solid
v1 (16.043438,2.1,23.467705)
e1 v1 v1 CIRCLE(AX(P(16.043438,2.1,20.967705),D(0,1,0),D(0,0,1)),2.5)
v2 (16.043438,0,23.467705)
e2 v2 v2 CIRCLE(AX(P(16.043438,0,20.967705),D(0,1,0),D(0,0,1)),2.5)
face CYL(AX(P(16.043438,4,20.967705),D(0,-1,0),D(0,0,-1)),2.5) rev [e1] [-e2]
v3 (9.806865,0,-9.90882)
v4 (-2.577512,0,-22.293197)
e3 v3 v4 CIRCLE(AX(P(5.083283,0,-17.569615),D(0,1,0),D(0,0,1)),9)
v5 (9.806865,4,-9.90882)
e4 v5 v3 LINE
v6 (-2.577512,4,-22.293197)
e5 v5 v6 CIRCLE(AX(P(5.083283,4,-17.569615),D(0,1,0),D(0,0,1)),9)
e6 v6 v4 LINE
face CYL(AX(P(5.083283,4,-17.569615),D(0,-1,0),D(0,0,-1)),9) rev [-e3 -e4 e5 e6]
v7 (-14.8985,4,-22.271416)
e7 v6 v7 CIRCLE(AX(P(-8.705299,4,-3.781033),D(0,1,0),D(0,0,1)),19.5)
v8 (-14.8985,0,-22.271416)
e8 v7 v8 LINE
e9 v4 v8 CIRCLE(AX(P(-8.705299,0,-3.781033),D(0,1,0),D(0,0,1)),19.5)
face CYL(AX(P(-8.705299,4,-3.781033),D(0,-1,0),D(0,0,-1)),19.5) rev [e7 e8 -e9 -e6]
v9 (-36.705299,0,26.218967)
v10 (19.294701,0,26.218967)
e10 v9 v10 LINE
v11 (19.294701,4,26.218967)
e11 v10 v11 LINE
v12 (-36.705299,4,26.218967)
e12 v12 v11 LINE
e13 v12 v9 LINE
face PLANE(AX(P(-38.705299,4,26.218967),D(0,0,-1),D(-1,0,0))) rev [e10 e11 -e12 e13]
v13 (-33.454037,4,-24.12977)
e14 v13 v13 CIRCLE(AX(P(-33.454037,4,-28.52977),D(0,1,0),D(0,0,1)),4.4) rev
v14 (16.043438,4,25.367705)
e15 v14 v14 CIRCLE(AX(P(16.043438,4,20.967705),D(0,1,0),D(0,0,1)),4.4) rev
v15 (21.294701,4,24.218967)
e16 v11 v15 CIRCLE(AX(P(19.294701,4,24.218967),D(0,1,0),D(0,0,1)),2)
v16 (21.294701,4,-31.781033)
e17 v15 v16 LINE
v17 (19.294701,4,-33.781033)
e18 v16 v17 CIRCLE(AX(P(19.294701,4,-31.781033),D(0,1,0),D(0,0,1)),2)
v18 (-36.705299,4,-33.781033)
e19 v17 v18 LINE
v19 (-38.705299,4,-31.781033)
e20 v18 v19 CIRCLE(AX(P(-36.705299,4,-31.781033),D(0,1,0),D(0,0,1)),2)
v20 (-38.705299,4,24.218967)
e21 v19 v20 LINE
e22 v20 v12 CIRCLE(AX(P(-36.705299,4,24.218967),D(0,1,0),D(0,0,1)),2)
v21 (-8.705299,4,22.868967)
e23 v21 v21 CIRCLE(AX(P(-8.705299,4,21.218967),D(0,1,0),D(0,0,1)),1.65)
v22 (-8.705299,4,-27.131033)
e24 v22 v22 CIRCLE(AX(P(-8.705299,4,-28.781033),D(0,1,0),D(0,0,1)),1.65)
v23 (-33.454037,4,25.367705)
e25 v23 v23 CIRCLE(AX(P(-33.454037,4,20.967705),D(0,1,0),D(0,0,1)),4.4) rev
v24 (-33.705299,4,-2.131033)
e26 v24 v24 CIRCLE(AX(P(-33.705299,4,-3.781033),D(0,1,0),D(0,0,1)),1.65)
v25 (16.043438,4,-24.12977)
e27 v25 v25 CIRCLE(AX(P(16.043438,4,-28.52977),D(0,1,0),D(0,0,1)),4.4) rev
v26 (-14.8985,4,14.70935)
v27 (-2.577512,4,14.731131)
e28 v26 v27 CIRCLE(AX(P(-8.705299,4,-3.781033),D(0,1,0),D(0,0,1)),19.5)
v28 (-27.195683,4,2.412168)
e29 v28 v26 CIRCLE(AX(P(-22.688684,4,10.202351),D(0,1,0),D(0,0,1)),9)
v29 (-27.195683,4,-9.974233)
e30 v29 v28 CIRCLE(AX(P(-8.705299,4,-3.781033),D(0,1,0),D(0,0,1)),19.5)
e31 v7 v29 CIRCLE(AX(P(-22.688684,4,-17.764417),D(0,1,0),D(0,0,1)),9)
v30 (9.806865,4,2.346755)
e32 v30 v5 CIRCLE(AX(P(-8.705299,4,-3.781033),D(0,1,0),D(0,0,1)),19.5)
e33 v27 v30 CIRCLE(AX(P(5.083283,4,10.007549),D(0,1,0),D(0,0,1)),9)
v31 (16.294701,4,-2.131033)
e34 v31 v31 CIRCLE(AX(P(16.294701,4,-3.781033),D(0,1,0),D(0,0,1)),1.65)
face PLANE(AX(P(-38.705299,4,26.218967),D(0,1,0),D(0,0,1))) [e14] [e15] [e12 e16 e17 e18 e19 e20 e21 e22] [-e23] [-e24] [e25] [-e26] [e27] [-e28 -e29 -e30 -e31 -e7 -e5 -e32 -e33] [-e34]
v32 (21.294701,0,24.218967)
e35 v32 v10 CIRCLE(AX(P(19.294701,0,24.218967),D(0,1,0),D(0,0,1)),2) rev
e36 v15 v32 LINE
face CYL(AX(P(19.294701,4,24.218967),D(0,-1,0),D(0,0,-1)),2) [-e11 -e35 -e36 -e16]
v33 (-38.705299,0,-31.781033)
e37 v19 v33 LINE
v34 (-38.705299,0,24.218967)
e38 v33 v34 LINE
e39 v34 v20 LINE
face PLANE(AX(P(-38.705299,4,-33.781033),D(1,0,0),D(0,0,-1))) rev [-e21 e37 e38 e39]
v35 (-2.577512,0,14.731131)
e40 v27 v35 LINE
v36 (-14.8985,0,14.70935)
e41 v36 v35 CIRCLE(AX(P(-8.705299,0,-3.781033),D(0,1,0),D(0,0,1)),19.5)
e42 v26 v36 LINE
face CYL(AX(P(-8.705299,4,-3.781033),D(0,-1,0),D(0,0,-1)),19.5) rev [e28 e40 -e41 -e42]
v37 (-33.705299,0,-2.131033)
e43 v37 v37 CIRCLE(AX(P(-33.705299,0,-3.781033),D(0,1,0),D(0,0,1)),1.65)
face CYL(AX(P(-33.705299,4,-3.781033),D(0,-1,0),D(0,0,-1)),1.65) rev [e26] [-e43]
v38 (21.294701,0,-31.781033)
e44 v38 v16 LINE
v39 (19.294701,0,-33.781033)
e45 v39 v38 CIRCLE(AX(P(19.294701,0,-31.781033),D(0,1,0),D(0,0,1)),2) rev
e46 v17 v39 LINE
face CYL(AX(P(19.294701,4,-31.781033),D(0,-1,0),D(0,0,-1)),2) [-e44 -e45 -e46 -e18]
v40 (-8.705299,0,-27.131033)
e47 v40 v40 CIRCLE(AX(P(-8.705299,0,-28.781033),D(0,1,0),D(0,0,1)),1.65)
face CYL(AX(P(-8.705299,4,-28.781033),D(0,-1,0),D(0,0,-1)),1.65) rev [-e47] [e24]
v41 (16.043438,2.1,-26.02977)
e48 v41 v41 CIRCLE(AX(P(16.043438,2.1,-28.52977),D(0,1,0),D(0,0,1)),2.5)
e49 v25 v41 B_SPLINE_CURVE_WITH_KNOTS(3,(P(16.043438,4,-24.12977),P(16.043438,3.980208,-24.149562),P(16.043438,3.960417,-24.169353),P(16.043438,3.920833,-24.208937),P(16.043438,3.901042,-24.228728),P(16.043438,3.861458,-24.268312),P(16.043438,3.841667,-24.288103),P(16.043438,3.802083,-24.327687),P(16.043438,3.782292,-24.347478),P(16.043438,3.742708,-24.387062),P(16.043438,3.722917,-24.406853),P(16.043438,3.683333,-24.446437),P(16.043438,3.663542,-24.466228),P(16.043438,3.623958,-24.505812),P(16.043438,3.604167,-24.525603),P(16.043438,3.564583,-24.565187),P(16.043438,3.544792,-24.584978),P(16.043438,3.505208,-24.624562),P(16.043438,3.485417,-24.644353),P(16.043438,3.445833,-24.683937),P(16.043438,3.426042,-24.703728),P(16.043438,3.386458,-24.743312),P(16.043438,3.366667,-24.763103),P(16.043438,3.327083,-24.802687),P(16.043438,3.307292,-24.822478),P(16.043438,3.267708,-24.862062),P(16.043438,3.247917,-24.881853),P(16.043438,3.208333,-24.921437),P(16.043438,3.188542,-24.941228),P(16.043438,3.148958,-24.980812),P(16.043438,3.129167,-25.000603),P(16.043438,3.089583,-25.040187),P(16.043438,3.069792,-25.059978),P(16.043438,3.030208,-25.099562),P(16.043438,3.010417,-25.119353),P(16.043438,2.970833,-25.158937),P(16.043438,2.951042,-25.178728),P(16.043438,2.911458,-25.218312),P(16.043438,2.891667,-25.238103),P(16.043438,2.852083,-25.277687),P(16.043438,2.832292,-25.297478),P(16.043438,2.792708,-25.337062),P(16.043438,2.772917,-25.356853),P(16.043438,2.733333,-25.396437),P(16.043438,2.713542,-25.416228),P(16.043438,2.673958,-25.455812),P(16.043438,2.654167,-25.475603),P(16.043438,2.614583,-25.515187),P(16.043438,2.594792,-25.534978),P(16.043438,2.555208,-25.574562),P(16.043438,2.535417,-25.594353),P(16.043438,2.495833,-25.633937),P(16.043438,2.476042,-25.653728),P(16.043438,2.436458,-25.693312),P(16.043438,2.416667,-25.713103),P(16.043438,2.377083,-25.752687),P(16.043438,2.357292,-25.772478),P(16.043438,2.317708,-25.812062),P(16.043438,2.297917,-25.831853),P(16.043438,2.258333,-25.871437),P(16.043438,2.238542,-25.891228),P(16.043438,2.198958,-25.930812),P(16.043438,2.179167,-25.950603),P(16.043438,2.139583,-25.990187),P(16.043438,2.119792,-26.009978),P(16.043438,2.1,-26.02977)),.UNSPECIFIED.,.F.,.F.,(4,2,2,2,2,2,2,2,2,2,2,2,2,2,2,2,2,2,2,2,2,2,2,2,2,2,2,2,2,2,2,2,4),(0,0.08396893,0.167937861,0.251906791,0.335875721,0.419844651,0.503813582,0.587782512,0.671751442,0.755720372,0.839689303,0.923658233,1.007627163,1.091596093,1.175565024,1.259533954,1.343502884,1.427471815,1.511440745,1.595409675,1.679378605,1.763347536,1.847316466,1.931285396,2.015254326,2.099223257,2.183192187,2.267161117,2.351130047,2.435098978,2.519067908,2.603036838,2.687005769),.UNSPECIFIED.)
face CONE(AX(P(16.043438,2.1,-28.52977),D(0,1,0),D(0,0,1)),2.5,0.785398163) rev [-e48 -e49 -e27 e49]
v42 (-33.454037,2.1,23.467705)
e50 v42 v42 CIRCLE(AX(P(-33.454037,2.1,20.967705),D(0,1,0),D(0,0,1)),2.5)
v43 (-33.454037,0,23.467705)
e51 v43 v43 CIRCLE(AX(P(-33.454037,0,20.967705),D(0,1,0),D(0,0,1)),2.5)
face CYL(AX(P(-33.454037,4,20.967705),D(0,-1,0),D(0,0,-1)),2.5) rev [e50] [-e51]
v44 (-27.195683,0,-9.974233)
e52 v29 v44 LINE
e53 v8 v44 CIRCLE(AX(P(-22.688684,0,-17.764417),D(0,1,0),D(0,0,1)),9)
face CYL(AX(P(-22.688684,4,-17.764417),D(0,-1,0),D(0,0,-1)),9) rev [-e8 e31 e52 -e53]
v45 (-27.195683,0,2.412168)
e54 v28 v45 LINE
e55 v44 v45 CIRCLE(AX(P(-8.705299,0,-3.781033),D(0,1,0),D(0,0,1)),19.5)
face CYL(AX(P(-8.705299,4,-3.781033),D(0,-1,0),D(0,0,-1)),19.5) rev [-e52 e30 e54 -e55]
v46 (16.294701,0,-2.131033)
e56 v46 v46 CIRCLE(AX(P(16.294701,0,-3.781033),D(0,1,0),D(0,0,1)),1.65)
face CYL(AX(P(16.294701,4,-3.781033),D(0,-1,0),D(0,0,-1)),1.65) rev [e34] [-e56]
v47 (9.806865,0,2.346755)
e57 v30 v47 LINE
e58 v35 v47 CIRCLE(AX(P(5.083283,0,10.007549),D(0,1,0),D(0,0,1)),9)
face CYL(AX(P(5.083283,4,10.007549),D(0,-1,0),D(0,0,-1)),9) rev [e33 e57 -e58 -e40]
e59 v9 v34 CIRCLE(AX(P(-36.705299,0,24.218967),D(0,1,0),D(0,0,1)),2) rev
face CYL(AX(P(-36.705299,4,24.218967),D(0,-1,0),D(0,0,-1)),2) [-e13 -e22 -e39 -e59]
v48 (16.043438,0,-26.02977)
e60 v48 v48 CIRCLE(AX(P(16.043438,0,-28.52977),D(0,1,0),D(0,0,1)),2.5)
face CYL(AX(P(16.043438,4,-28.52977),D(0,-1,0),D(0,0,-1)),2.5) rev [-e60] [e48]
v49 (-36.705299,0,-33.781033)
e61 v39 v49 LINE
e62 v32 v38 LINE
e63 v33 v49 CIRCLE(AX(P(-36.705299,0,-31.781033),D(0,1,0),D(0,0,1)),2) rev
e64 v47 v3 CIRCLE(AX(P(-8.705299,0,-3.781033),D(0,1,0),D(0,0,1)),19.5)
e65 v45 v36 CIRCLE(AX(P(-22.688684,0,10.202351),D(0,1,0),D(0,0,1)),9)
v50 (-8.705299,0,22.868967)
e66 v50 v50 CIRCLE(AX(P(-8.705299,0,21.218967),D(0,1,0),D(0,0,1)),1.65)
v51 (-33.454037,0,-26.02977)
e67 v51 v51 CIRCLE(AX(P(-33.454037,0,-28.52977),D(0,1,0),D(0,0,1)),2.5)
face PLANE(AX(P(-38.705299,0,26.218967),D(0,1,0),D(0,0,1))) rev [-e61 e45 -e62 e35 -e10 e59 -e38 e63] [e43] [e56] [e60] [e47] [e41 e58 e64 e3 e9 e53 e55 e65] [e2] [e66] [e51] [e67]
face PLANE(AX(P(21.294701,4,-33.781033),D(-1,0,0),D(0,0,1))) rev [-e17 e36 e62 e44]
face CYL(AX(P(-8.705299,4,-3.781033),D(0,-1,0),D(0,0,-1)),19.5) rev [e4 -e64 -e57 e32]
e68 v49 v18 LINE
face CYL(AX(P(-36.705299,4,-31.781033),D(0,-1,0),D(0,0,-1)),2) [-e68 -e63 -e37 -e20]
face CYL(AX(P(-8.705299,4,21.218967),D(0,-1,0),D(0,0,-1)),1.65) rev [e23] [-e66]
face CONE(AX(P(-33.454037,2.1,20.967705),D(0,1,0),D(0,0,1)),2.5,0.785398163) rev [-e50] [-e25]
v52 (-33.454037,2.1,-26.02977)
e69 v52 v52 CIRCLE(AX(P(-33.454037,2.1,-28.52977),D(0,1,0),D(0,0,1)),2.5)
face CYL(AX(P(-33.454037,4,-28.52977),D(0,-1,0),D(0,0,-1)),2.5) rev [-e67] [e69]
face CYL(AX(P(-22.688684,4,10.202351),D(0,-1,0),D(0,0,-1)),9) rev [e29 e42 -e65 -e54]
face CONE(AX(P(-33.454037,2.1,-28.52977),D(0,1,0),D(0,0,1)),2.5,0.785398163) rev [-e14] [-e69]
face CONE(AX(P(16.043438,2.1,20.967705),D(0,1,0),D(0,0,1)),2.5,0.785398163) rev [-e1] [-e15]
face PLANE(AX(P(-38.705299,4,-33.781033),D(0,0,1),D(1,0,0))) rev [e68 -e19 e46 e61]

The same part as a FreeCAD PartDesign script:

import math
import FreeCAD as App
import Part
import Sketcher

V = App.Vector
Q = App.Units.Quantity


def edges_at(feature, points):
    """Names of the edges that pass closest to the given points."""
    edges = feature.Shape.Edges
    near = lambda p: min(range(len(edges)), key=lambda i: edges[i].distToShape(Part.Vertex(*p))[0])
    return sorted({f"Edge{near(p) + 1}" for p in points})


def add_polygon(sketch, points):
    """Adds a closed chain of lines whose ends are joined by coincident constraints."""
    first, n = sketch.GeometryCount, len(points)
    for a, b in zip(points, points[1:] + points[:1]):
        sketch.addGeometry(Part.LineSegment(App.Vector(*a, 0), App.Vector(*b, 0)), False)
    for i in range(n):
        sketch.addConstraint(Sketcher.Constraint("Coincident", first + i, 2, first + (i + 1) % n, 1))

doc = App.newDocument("Part")
body = doc.addObject("PartDesign::Body", "Body")

# Sketch on XZ plane
sketch1 = doc.addObject("Sketcher::SketchObject", "Sketch")
body.addObject(sketch1)
sketch1.AttachmentSupport = (doc.XZ_Plane, [""])
sketch1.MapMode = "FlatFace"
add_polygon(sketch1, [(-38.705299, -33.781033), (-38.705299, 26.218967), (21.294701, 26.218967), (21.294701, -33.781033)])  # lines 0-3
sketch1.addGeometry(Part.Circle(V(-33.454037, 20.967705, 0), V(0, 0, 1), 2.5), False)  # 4
sketch1.addGeometry(Part.Circle(V(-33.705299, -3.781033, 0), V(0, 0, 1), 1.65), False)  # 5
sketch1.addGeometry(Part.ArcOfCircle(Part.Circle(V(-8.705299, -3.781033, 0), V(0, 0, 1), 19.5), math.radians(161.482153), math.radians(198.517847)), False)  # 6
sketch1.addGeometry(Part.ArcOfCircle(Part.Circle(V(-22.688684, -17.764417, 0), V(0, 0, 1), 9), math.radians(120.051464), math.radians(329.948536)), False)  # 7
sketch1.addGeometry(Part.ArcOfCircle(Part.Circle(V(-8.705299, -3.781033, 0), V(0, 0, 1), 19.5), math.radians(-108.517847), math.radians(-71.684728)), False)  # 8
sketch1.addGeometry(Part.ArcOfCircle(Part.Circle(V(5.083283, -17.569615, 0), V(0, 0, 1), 9), math.radians(-148.342364), math.radians(58.342364)), False)  # 9
sketch1.addGeometry(Part.ArcOfCircle(Part.Circle(V(-8.705299, -3.781033, 0), V(0, 0, 1), 19.5), math.radians(-18.315272), math.radians(18.315272)), False)  # 10
sketch1.addGeometry(Part.ArcOfCircle(Part.Circle(V(5.083283, 10.007549, 0), V(0, 0, 1), 9), math.radians(-58.342364), math.radians(148.342364)), False)  # 11
sketch1.addGeometry(Part.ArcOfCircle(Part.Circle(V(-8.705299, -3.781033, 0), V(0, 0, 1), 19.5), math.radians(71.684728), math.radians(108.517847)), False)  # 12
sketch1.addGeometry(Part.ArcOfCircle(Part.Circle(V(-22.688684, 10.202351, 0), V(0, 0, 1), 9), math.radians(30.051464), math.radians(239.948536)), False)  # 13
sketch1.addGeometry(Part.Circle(V(-8.705299, 21.218967, 0), V(0, 0, 1), 1.65), False)  # 14
sketch1.addGeometry(Part.Circle(V(16.043438, 20.967705, 0), V(0, 0, 1), 2.5), False)  # 15
sketch1.addGeometry(Part.Circle(V(16.294701, -3.781033, 0), V(0, 0, 1), 1.65), False)  # 16
sketch1.addGeometry(Part.Circle(V(-33.454037, -28.52977, 0), V(0, 0, 1), 2.5), False)  # 17
sketch1.addGeometry(Part.Circle(V(-8.705299, -28.781033, 0), V(0, 0, 1), 1.65), False)  # 18
sketch1.addGeometry(Part.Circle(V(16.043438, -28.52977, 0), V(0, 0, 1), 2.5), False)  # 19
sketch1.addConstraint(Sketcher.Constraint("Coincident", 6, 2, 7, 1))
sketch1.addConstraint(Sketcher.Constraint("Coincident", 7, 2, 8, 1))
sketch1.addConstraint(Sketcher.Constraint("Coincident", 8, 2, 9, 1))
sketch1.addConstraint(Sketcher.Constraint("Coincident", 9, 2, 10, 1))
sketch1.addConstraint(Sketcher.Constraint("Coincident", 10, 2, 11, 1))
sketch1.addConstraint(Sketcher.Constraint("Coincident", 11, 2, 12, 1))
sketch1.addConstraint(Sketcher.Constraint("Coincident", 12, 2, 13, 1))
sketch1.addConstraint(Sketcher.Constraint("Coincident", 13, 2, 6, 1))
sketch1.addConstraint(Sketcher.Constraint("Vertical", 0))
sketch1.addConstraint(Sketcher.Constraint("Horizontal", 1))
sketch1.addConstraint(Sketcher.Constraint("Vertical", 2))
sketch1.addConstraint(Sketcher.Constraint("Horizontal", 3))
sketch1.addConstraint(Sketcher.Constraint("Coincident", 8, 3, 6, 3))
sketch1.addConstraint(Sketcher.Constraint("Coincident", 10, 3, 6, 3))
sketch1.addConstraint(Sketcher.Constraint("Coincident", 12, 3, 6, 3))
sketch1.addConstraint(Sketcher.Constraint("Equal", 6, 8))
sketch1.addConstraint(Sketcher.Constraint("Equal", 7, 9))
sketch1.addConstraint(Sketcher.Constraint("Equal", 8, 10))
sketch1.addConstraint(Sketcher.Constraint("Equal", 9, 11))
sketch1.addConstraint(Sketcher.Constraint("Equal", 10, 12))
sketch1.addConstraint(Sketcher.Constraint("Equal", 11, 13))
sketch1.addConstraint(Sketcher.Constraint("Equal", 5, 14))
sketch1.addConstraint(Sketcher.Constraint("Equal", 4, 15))
sketch1.addConstraint(Sketcher.Constraint("Equal", 14, 16))
sketch1.addConstraint(Sketcher.Constraint("Equal", 15, 17))
sketch1.addConstraint(Sketcher.Constraint("Equal", 16, 18))
sketch1.addConstraint(Sketcher.Constraint("Equal", 17, 19))
sketch1.addConstraint(Sketcher.Constraint("Horizontal", 5, 3, 6, 3))
sketch1.addConstraint(Sketcher.Constraint("Horizontal", 4, 3, 15, 3))
sketch1.addConstraint(Sketcher.Constraint("Horizontal", 12, 3, 16, 3))
sketch1.addConstraint(Sketcher.Constraint("Horizontal", 17, 3, 19, 3))
sketch1.addConstraint(Sketcher.Constraint("Vertical", 9, 3, 11, 3))
sketch1.addConstraint(Sketcher.Constraint("Vertical", 7, 3, 13, 3))
sketch1.addConstraint(Sketcher.Constraint("Vertical", 12, 3, 14, 3))
sketch1.addConstraint(Sketcher.Constraint("Vertical", 4, 3, 17, 3))
sketch1.addConstraint(Sketcher.Constraint("Vertical", 14, 3, 18, 3))
sketch1.addConstraint(Sketcher.Constraint("Vertical", 15, 3, 19, 3))
sketch1.addConstraint(Sketcher.Constraint("Vertical", 9, 2, 10, 2))
sketch1.addConstraint(Sketcher.Constraint("Vertical", 7, 2, 12, 2))
sketch1.addConstraint(Sketcher.Constraint("Equal", 3, 0))
sketch1.addConstraint(Sketcher.Constraint("Diameter", 4, Q("5 mm")))
sketch1.addConstraint(Sketcher.Constraint("Radius", 7, Q("9 mm")))
sketch1.addConstraint(Sketcher.Constraint("Diameter", 5, Q("3.3 mm")))
sketch1.addConstraint(Sketcher.Constraint("Radius", 6, Q("19.5 mm")))
sketch1.addConstraint(Sketcher.Constraint("DistanceX", 1, 1, 1, 2, Q("60 mm")))
sketch1.addConstraint(Sketcher.Constraint("DistanceX", 5, 3, 6, 3, Q("25 mm")))
sketch1.addConstraint(Sketcher.Constraint("DistanceY", 12, 3, 14, 3, Q("25 mm")))
sketch1.addConstraint(Sketcher.Constraint("DistanceX", 10, 3, 16, 3, Q("25 mm")))
sketch1.addConstraint(Sketcher.Constraint("DistanceY", 18, 3, 8, 3, Q("25 mm")))
sketch1.addConstraint(Sketcher.Constraint("DistanceX", 0, 2, 5, 3, Q("5 mm")))
sketch1.addConstraint(Sketcher.Constraint("DistanceY", 5, 3, 0, 2, Q("30 mm")))
sketch1.addConstraint(Sketcher.Constraint("DistanceX", 6, 2, 7, 3, Q("4.506999 mm")))
sketch1.addConstraint(Sketcher.Constraint("DistanceY", 7, 2, 7, 3, Q("4.506999 mm")))
sketch1.addConstraint(Sketcher.Constraint("DistanceX", 5, 3, -1, 1, Q("33.705299 mm")))
sketch1.addConstraint(Sketcher.Constraint("DistanceY", 7, 3, 9, 3, Q("0.194802 mm")))
sketch1.addConstraint(Sketcher.Constraint("DistanceY", -1, 1, 11, 3, Q("10.007549 mm")))
sketch1.addConstraint(Sketcher.Constraint("DistanceY", 17, 3, -1, 1, Q("28.52977 mm")))
sketch1.addConstraint(Sketcher.Constraint("DistanceX", 8, 2, -1, 1, Q("2.577512 mm")))
sketch1.addConstraint(Sketcher.Constraint("DistanceY", 7, 3, 4, 3, Q("38.732121 mm")))
sketch1.addConstraint(Sketcher.Constraint("DistanceX", 4, 3, 9, 3, Q("38.53732 mm")))
sketch1.addConstraint(Sketcher.Constraint("DistanceX", -1, 1, 15, 3, Q("16.043438 mm")))
pad1 = doc.addObject("PartDesign::Pad", "Pad")
body.addObject(pad1)
pad1.Profile = sketch1
pad1.Length = 4
pad1.Reversed = True
doc.recompute()

fillet = doc.addObject("PartDesign::Fillet", "Fillet")
body.addObject(fillet)
fillet.Base = (pad1, edges_at(pad1, [
    (-38.705, 2, -33.781),
    (21.295, 2, -33.781),
    (21.295, 2, 26.219),
    (-38.705, 2, 26.219),
]))
fillet.Radius = 2
doc.recompute()

chamfer = doc.addObject("PartDesign::Chamfer", "Chamfer")
body.addObject(chamfer)
chamfer.Base = (fillet, edges_at(fillet, [
    (-33.454, 4, -31.03),
    (16.043, 4, -31.03),
    (-33.454, 4, 18.468),
    (16.043, 4, 18.468),
]))
chamfer.Size = 1.9

doc.recompute()
